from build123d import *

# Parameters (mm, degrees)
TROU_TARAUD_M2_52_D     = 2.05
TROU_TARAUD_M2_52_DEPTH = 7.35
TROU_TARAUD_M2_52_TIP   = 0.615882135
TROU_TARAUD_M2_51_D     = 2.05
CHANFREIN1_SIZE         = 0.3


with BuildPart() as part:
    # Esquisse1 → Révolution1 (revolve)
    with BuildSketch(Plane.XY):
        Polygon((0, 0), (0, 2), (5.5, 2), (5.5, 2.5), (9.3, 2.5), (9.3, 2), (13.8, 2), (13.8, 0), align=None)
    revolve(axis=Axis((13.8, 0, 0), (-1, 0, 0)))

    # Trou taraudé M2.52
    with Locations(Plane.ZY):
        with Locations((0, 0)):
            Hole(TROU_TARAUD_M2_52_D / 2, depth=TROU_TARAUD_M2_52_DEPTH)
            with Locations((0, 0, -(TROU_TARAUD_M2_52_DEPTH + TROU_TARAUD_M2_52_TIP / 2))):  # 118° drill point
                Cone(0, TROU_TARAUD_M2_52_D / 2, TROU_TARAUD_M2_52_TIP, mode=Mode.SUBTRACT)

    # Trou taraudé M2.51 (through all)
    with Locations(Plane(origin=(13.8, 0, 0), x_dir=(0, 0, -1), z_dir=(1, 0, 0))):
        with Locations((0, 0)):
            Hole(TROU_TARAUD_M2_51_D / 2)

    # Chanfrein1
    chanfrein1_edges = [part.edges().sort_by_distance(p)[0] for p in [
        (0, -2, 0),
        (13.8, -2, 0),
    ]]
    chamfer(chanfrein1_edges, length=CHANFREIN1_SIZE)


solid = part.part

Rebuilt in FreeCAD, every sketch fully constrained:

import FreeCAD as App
import Part
import Sketcher
from FreeCAD import Vector
Q = App.Units.Quantity


def edges_at(feature, points):
    """Names of the edges that pass closest to the given points."""
    edges = feature.Shape.Edges
    near = lambda p: min(range(len(edges)), key=lambda i: edges[i].distToShape(Part.Vertex(*p))[0])
    return sorted({f"Edge{near(p) + 1}" for p in points})

doc = App.newDocument("Part")
body = doc.addObject("PartDesign::Body", "Body")

sketch1 = body.newObject("Sketcher::SketchObject", "Sketch")
sketch1.AttachmentSupport = (doc.getObject("XY_Plane"), [""])
sketch1.MapMode = "FlatFace"
sketch1.addGeometry(Part.LineSegment(Vector(0, 2, 0), Vector(0, 0, 0)), False)
sketch1.addGeometry(Part.LineSegment(Vector(0, 0, 0), Vector(13.8, 0, 0)), False)
sketch1.addGeometry(Part.LineSegment(Vector(13.8, 0, 0), Vector(13.8, 2, 0)), False)
sketch1.addGeometry(Part.LineSegment(Vector(13.8, 2, 0), Vector(9.3, 2, 0)), False)
sketch1.addGeometry(Part.LineSegment(Vector(9.3, 2, 0), Vector(9.3, 2.5, 0)), False)
sketch1.addGeometry(Part.LineSegment(Vector(9.3, 2.5, 0), Vector(5.5, 2.5, 0)), False)
sketch1.addGeometry(Part.LineSegment(Vector(5.5, 2.5, 0), Vector(5.5, 2, 0)), False)
sketch1.addGeometry(Part.LineSegment(Vector(5.5, 2, 0), Vector(0, 2, 0)), False)
sketch1.addConstraint(Sketcher.Constraint("Coincident", 0, 2, 1, 1))
sketch1.addConstraint(Sketcher.Constraint("Coincident", 1, 2, 2, 1))
sketch1.addConstraint(Sketcher.Constraint("Coincident", 2, 2, 3, 1))
sketch1.addConstraint(Sketcher.Constraint("Coincident", 3, 2, 4, 1))
sketch1.addConstraint(Sketcher.Constraint("Coincident", 4, 2, 5, 1))
sketch1.addConstraint(Sketcher.Constraint("Coincident", 5, 2, 6, 1))
sketch1.addConstraint(Sketcher.Constraint("Coincident", 6, 2, 7, 1))
sketch1.addConstraint(Sketcher.Constraint("Coincident", 7, 2, 0, 1))
sketch1.addConstraint(Sketcher.Constraint("Vertical", 0))
sketch1.addConstraint(Sketcher.Constraint("Horizontal", 1))
sketch1.addConstraint(Sketcher.Constraint("Vertical", 2))
sketch1.addConstraint(Sketcher.Constraint("Horizontal", 3))
sketch1.addConstraint(Sketcher.Constraint("Vertical", 4))
sketch1.addConstraint(Sketcher.Constraint("Horizontal", 5))
sketch1.addConstraint(Sketcher.Constraint("Vertical", 6))
sketch1.addConstraint(Sketcher.Constraint("Horizontal", 7))
sketch1.addConstraint(Sketcher.Constraint("Coincident", 0, 2, -1, 1))
sketch1.addConstraint(Sketcher.Constraint("Horizontal", 3, 2, 6, 2))
sketch1.addConstraint(Sketcher.Constraint("DistanceY", 0, 2, 0, 1, Q("2 mm")))
sketch1.addConstraint(Sketcher.Constraint("DistanceX", 1, 1, 1, 2, Q("13.8 mm")))
sketch1.addConstraint(Sketcher.Constraint("DistanceX", 3, 2, 3, 1, Q("4.5 mm")))
sketch1.addConstraint(Sketcher.Constraint("DistanceX", 5, 2, 5, 1, Q("3.8 mm")))
sketch1.addConstraint(Sketcher.Constraint("DistanceY", 4, 1, 4, 2, Q("0.5 mm")))
revolution = body.newObject("PartDesign::Revolution", "Revolution")
revolution.Profile = sketch1
revolution.ReferenceAxis = (sketch1, ["H_Axis"])
revolution.Angle = 360

sketch2 = body.newObject("Sketcher::SketchObject", "Sketch001")
sketch2.AttachmentSupport = (doc.getObject("YZ_Plane"), [""])
sketch2.MapMode = "FlatFace"
sketch2.addGeometry(Part.Circle(Vector(0, 0, 0), Vector(0, 0, 1), 1), False)
sketch2.addConstraint(Sketcher.Constraint("Coincident", 0, 3, -1, 1))
sketch2.addConstraint(Sketcher.Constraint("Diameter", 0, Q("2.05 mm")))
doc.recompute()
hole = body.newObject("PartDesign::Hole", "Hole")
hole.Profile = sketch2
hole.ThreadType = "None"
hole.Diameter = 2.05
hole.DepthType = "Dimension"
hole.Depth = 7.35
hole.DrillPoint = "Angled"
hole.DrillPointAngle = 118
hole.Reversed = True

sketch3 = body.newObject("Sketcher::SketchObject", "Sketch002")
sketch3.AttachmentSupport = (doc.getObject("YZ_Plane"), [""])
sketch3.MapMode = "FlatFace"
sketch3.AttachmentOffset = App.Placement(Vector(0, 0, 13.8), App.Rotation())
sketch3.addGeometry(Part.Circle(Vector(0, 0, 0), Vector(0, 0, 1), 1), False)
sketch3.addConstraint(Sketcher.Constraint("Coincident", 0, 3, -1, 1))
sketch3.addConstraint(Sketcher.Constraint("Diameter", 0, Q("2.05 mm")))
doc.recompute()
hole2 = body.newObject("PartDesign::Hole", "Hole001")
hole2.Profile = sketch3
hole2.ThreadType = "None"
hole2.Diameter = 2.05
hole2.DepthType = "ThroughAll"
doc.recompute()

chamfer = body.newObject("PartDesign::Chamfer", "Chamfer")
chamfer.Base = (hole2, edges_at(hole2, [(0, -2, 0), (13.8, -2, 0)]))
chamfer.Size = 0.3

doc.recompute()
